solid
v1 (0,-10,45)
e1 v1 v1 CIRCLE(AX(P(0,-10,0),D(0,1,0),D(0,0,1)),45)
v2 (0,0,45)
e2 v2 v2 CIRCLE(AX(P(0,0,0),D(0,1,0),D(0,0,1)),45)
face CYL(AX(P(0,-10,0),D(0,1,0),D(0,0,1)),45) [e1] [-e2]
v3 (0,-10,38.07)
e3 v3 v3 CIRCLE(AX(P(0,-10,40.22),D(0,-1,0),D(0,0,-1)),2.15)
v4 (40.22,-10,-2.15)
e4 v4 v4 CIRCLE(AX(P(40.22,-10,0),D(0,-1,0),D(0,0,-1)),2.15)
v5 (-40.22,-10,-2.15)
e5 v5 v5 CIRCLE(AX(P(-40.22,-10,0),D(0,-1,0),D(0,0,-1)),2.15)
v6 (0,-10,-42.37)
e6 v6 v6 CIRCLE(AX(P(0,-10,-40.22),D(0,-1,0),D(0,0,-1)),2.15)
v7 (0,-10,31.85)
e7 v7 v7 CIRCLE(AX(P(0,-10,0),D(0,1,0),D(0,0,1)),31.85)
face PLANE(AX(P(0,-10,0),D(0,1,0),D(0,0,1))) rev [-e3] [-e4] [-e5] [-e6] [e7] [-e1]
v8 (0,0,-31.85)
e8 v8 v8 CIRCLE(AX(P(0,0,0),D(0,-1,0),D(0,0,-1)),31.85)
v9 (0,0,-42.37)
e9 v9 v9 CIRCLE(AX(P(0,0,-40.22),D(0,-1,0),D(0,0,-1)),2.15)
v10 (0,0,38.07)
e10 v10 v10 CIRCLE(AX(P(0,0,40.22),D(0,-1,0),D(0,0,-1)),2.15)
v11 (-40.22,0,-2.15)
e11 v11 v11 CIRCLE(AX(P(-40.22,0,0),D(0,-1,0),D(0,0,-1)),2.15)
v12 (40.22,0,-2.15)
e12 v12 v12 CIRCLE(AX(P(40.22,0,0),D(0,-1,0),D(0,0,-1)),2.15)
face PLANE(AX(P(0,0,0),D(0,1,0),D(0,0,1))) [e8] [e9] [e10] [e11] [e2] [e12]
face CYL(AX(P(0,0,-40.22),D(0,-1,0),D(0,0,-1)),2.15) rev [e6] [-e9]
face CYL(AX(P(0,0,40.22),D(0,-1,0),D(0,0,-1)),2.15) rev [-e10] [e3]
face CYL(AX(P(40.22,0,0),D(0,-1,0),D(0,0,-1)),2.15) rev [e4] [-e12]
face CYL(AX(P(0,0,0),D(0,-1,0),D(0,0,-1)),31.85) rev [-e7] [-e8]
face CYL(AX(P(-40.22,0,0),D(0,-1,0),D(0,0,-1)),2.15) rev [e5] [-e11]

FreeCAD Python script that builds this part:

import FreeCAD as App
import Part
import Sketcher

doc = App.newDocument("Part")
body = doc.addObject("PartDesign::Body", "Body")

# Sketch on XZ plane
sketch1 = body.newObject("Sketcher::SketchObject", "Sketch")
sketch1.AttachmentSupport = (doc.getObject("XZ_Plane"), [""])
sketch1.MapMode = "FlatFace"
sketch1.addGeometry(Part.Circle(App.Vector(0, 0, 0), App.Vector(0, 0, 1), 45), False)
sketch1.addConstraint([
    Sketcher.Constraint("Coincident", 0, 3, -1, 1),
    Sketcher.Constraint("Diameter", 0, 90.0),
])
pad1 = body.newObject("PartDesign::Pad", "Pad")
pad1.Profile = sketch1
pad1.Length = 10

# Sketch on XZ plane
sketch2 = body.newObject("Sketcher::SketchObject", "Sketch001")
sketch2.AttachmentSupport = (doc.getObject("XZ_Plane"), [""])
sketch2.MapMode = "FlatFace"
sketch2.AttachmentOffset = App.Placement(App.Vector(0, 0, 10), App.Rotation())
sketch2.addGeometry(Part.Circle(App.Vector(0, 0, 0), App.Vector(0, 0, 1), 32), False)
sketch2.addConstraint([
    Sketcher.Constraint("Coincident", 0, 3, -1, 1),
    Sketcher.Constraint("Diameter", 0, 63.7),
])
pocket1 = body.newObject("PartDesign::Pocket", "Pocket")
pocket1.Profile = sketch2
pocket1.Type = "ThroughAll"
pocket1.Midplane = True

# Sketch on XZ plane
sketch3 = body.newObject("Sketcher::SketchObject", "Sketch002")
sketch3.AttachmentSupport = (doc.getObject("XZ_Plane"), [""])
sketch3.MapMode = "FlatFace"
sketch3.AttachmentOffset = App.Placement(App.Vector(0, 0, 10), App.Rotation())
sketch3.addGeometry([
    Part.Circle(App.Vector(-40.2, 0, 0), App.Vector(0, 0, 1), 2.1),
    Part.Circle(App.Vector(0, -40.2, 0), App.Vector(0, 0, 1), 2.1),
    Part.Circle(App.Vector(0, 40.2, 0), App.Vector(0, 0, 1), 2.1),
    Part.Circle(App.Vector(40.2, 0, 0), App.Vector(0, 0, 1), 2.1),
], False)
sketch3.addConstraint([
    Sketcher.Constraint("Equal", 0, 1),
    Sketcher.Constraint("Equal", 1, 2),
    Sketcher.Constraint("Equal", 2, 3),
    Sketcher.Constraint("Symmetric", 1, 3, 2, 3, -1, 1),
    Sketcher.Constraint("Symmetric", 0, 3, 3, 3, -1, 1),
    Sketcher.Constraint("PointOnObject", 0, 3, -1),
    Sketcher.Constraint("PointOnObject", 1, 3, -2),
    Sketcher.Constraint("Diameter", 0, 4.3),
    Sketcher.Constraint("DistanceX", 0, 3, -1, 1, 40.22),
    Sketcher.Constraint("DistanceY", 1, 3, -1, 1, 40.22),
])
pocket2 = body.newObject("PartDesign::Pocket", "Pocket001")
pocket2.Profile = sketch3
pocket2.Type = "ThroughAll"

doc.recompute()
